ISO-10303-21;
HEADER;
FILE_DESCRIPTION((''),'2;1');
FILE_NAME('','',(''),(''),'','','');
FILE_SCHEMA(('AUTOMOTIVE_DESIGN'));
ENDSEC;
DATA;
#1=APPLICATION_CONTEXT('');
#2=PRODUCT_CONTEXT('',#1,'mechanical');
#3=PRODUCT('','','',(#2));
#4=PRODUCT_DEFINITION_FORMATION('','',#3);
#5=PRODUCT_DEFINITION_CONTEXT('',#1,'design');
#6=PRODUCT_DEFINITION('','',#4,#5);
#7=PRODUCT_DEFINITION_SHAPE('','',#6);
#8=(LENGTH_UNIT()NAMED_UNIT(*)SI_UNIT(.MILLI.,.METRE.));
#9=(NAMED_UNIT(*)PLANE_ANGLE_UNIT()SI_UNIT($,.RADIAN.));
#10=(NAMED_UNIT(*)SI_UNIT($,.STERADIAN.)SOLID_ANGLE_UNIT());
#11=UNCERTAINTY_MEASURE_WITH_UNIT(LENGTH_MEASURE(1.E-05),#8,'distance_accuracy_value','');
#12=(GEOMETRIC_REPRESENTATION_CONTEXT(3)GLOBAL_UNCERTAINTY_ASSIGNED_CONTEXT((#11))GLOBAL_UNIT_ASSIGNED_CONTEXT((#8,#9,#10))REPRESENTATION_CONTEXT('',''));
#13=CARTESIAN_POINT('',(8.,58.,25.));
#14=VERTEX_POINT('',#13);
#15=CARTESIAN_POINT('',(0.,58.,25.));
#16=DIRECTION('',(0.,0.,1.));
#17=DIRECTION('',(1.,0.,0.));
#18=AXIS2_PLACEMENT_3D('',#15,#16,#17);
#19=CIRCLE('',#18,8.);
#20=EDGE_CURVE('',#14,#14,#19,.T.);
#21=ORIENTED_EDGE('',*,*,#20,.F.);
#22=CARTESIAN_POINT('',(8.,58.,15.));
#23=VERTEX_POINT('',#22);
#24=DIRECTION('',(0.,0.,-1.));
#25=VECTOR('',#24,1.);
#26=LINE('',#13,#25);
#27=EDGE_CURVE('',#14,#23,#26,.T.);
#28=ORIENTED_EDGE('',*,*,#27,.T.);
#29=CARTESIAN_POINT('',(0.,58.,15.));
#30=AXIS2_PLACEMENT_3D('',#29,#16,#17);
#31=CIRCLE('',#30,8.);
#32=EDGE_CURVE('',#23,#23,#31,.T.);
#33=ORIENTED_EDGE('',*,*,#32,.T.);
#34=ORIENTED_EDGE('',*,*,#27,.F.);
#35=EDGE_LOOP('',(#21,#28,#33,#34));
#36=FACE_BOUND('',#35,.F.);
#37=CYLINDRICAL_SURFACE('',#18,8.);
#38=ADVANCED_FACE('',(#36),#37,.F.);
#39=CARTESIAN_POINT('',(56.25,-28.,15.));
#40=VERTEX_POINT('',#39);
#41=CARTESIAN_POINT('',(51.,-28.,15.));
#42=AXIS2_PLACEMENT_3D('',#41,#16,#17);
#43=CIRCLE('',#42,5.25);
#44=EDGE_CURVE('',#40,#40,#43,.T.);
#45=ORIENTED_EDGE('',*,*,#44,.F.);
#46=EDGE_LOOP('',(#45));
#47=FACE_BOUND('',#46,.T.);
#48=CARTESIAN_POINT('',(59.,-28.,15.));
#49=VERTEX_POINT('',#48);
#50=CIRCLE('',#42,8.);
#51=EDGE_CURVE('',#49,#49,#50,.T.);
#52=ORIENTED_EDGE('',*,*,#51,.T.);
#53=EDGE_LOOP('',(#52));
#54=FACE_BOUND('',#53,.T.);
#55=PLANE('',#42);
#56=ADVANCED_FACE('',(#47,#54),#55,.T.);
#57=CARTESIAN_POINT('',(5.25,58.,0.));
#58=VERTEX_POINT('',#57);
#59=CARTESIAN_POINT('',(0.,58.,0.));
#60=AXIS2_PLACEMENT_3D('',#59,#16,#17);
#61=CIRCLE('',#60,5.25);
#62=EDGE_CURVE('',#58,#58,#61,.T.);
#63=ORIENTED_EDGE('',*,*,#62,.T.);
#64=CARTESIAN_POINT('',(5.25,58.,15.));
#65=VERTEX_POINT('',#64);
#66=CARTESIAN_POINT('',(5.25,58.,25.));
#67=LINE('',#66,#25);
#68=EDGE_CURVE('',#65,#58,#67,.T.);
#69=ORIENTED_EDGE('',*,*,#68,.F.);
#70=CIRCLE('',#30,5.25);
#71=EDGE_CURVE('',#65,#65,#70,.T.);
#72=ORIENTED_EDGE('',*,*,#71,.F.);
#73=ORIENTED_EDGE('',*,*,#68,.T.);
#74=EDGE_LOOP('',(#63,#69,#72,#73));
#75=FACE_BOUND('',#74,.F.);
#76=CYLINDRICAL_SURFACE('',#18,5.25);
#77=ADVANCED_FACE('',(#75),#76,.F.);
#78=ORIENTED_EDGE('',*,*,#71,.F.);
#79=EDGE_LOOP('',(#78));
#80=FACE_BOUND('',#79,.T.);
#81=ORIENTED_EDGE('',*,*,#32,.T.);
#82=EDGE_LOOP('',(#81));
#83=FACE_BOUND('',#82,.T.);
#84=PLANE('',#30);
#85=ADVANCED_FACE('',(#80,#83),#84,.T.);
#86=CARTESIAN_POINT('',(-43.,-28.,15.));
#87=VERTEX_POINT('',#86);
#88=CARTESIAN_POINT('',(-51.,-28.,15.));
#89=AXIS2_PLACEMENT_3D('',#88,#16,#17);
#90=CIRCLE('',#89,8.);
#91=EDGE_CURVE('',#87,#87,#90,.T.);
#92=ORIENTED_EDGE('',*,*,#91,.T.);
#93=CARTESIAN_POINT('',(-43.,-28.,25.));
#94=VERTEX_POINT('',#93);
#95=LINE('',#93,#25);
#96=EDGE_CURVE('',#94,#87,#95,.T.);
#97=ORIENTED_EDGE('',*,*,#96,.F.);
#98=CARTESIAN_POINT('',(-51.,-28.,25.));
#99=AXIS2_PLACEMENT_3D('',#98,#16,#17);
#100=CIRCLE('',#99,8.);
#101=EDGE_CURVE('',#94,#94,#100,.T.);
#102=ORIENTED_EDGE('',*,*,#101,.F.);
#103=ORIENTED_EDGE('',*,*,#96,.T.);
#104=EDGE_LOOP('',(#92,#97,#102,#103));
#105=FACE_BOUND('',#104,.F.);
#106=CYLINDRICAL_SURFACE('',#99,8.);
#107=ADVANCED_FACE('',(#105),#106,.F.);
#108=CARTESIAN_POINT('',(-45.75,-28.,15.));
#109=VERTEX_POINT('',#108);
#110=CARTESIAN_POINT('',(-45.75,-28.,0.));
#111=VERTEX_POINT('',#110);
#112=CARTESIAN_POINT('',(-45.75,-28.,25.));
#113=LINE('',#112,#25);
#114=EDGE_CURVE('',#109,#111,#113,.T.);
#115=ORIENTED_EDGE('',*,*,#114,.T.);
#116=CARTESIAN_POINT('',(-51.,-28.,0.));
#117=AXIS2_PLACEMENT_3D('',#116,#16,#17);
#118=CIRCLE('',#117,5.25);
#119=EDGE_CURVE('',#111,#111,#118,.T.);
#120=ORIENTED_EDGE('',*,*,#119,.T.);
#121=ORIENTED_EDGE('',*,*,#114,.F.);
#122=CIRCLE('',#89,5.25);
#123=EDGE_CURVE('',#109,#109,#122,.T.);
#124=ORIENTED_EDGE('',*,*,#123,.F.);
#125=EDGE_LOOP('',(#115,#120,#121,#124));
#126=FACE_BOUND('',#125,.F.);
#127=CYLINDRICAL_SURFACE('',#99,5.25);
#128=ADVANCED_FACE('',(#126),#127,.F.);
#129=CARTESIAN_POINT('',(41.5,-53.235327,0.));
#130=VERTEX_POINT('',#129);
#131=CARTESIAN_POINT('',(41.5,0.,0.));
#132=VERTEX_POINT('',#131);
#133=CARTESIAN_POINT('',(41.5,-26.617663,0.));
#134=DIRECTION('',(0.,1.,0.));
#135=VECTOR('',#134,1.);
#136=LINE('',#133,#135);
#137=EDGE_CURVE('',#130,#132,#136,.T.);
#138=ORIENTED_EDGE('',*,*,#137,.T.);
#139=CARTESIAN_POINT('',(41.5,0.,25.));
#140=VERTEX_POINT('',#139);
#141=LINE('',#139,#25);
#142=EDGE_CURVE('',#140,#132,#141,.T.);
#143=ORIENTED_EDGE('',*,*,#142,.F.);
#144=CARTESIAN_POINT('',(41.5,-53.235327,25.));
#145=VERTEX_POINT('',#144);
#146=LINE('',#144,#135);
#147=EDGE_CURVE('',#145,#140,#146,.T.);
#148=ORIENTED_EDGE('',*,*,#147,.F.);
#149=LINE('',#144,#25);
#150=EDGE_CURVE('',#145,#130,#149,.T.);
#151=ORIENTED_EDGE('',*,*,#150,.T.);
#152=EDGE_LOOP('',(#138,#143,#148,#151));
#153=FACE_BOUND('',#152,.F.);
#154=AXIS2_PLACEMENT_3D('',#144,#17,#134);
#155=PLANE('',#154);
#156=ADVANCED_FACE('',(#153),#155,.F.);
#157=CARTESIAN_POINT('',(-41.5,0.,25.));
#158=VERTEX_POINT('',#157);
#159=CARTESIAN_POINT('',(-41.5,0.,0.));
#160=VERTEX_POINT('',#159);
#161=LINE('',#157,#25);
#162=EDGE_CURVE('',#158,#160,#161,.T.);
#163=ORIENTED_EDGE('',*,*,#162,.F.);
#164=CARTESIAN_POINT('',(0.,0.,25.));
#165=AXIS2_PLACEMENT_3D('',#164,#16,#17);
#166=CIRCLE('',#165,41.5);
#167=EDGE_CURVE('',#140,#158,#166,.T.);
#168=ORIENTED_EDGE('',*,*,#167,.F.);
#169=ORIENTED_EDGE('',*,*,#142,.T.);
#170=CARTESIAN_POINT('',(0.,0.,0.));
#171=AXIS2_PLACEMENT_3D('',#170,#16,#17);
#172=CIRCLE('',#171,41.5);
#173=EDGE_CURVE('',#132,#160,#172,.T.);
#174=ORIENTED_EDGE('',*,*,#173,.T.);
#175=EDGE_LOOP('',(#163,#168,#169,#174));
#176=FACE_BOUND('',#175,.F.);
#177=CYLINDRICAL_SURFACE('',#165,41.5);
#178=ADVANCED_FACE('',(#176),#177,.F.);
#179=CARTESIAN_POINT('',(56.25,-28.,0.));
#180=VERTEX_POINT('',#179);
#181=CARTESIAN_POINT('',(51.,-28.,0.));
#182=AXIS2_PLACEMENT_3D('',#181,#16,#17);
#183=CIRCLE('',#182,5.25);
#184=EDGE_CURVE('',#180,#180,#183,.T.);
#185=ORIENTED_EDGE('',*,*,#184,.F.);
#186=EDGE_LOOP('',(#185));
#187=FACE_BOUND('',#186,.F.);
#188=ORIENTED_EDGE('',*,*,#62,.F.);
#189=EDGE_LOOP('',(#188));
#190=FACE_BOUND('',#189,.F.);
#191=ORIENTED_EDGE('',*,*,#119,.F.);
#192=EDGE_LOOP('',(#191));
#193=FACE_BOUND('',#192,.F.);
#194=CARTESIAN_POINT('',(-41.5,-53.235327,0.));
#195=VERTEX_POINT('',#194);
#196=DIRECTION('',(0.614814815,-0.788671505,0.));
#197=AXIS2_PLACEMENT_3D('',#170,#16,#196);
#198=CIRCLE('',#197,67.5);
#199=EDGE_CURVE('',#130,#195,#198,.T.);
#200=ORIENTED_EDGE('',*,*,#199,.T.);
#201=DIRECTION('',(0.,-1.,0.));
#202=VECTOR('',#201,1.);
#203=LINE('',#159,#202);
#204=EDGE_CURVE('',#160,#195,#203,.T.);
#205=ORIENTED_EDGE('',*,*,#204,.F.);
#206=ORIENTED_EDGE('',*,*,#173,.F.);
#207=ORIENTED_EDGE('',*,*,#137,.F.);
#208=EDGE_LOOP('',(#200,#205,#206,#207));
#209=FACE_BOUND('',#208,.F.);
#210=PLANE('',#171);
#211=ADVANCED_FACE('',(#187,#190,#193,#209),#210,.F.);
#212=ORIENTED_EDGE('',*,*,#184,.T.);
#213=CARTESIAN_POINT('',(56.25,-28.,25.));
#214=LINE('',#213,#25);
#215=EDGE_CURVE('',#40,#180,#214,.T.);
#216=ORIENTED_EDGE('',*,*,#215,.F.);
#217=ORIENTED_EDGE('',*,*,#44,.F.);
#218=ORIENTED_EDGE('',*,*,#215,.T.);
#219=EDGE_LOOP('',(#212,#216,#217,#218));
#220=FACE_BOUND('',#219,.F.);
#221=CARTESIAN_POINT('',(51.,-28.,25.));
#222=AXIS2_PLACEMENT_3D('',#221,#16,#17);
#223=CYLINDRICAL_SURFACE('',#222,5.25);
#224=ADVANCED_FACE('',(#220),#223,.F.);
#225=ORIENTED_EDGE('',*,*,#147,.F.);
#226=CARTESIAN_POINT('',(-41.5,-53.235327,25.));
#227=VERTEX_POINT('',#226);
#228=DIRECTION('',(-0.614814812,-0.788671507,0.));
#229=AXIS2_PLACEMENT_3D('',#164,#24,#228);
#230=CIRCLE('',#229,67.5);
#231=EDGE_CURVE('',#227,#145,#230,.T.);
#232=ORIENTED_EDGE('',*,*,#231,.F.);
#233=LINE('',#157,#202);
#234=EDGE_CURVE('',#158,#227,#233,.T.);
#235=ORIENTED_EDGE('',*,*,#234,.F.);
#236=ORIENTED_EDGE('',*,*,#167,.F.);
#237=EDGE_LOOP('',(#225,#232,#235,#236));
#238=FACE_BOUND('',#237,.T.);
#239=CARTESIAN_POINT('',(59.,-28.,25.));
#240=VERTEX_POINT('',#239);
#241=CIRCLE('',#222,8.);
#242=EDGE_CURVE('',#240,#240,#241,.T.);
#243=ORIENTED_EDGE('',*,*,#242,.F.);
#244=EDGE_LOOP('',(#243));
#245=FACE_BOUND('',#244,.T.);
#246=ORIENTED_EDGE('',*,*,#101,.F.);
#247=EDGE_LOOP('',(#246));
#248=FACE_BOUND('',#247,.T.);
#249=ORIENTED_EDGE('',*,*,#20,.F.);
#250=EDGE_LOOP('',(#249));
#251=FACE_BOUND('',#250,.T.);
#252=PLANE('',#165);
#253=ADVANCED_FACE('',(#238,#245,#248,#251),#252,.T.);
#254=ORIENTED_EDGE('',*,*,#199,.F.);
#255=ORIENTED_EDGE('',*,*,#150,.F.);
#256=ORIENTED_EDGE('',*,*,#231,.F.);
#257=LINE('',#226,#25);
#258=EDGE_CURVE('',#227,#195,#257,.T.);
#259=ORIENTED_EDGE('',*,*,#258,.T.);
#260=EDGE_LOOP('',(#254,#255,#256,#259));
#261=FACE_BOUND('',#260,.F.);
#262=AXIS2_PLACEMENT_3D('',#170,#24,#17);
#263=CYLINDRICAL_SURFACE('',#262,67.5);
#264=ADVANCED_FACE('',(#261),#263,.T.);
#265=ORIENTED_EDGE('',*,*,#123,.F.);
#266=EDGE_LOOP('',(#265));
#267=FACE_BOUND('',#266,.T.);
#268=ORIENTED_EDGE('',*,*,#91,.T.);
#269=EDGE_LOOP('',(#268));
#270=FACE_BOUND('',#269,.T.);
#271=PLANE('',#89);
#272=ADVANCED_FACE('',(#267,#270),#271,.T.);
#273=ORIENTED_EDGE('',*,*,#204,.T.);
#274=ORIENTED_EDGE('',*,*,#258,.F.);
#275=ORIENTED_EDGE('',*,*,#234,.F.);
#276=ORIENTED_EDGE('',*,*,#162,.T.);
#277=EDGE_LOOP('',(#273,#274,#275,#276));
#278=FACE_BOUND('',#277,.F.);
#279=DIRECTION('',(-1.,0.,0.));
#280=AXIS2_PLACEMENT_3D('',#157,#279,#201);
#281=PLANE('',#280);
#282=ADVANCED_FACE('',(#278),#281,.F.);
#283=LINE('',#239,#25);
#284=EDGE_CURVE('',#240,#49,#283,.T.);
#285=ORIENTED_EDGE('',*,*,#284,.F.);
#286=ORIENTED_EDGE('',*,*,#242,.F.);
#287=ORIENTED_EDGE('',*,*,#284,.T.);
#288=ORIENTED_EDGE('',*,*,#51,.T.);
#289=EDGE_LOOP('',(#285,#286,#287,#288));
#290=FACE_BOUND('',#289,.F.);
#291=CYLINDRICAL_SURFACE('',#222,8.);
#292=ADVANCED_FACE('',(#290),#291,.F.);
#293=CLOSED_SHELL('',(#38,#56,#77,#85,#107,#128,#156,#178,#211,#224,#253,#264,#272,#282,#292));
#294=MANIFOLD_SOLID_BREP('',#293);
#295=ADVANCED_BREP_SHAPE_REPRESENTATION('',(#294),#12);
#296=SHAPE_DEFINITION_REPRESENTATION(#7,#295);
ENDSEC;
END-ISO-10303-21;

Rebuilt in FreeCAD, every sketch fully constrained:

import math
import FreeCAD as App
import Part
import Sketcher
Q = App.Units.Quantity

doc = App.newDocument("Part")
body = doc.addObject("PartDesign::Body", "Body")

# Sketch on XY plane
sketch1 = doc.addObject("Sketcher::SketchObject", "Sketch")
body.addObject(sketch1)
sketch1.AttachmentSupport = (doc.XY_Plane, [""])
sketch1.MapMode = "FlatFace"
sketch1.addGeometry(Part.Circle(App.Vector(0, 0, 0), App.Vector(0, 0, 1), 68), False)
sketch1.addConstraint(Sketcher.Constraint("Coincident", 0, 3, -1, 1))
sketch1.addConstraint(Sketcher.Constraint("Diameter", 0, Q("135 mm")))
pad1 = doc.addObject("PartDesign::Pad", "Pad")
body.addObject(pad1)
pad1.Profile = sketch1
pad1.Length = 25

# Sketch on XY plane
sketch2 = doc.addObject("Sketcher::SketchObject", "Sketch001")
body.addObject(sketch2)
sketch2.AttachmentSupport = (doc.XY_Plane, [""])
sketch2.MapMode = "FlatFace"
sketch2.AttachmentOffset = App.Placement(App.Vector(0, 0, 25), App.Rotation())
sketch2.addGeometry(Part.ArcOfCircle(Part.Circle(App.Vector(0, 0, 0), App.Vector(0, 0, 1), 42), math.radians(0), math.radians(180)), False)
sketch2.addGeometry(Part.LineSegment(App.Vector(-42, 0, 0), App.Vector(-42, -53, 0)), False)
sketch2.addGeometry(Part.ArcOfCircle(Part.Circle(App.Vector(0, 0, 0), App.Vector(0, 0, 1), 68), math.radians(-128), math.radians(-52)), False)
sketch2.addGeometry(Part.LineSegment(App.Vector(42, -53, 0), App.Vector(42, 0, 0)), False)
sketch2.addConstraint(Sketcher.Constraint("Tangent", 0, 2, 1, 1))
sketch2.addConstraint(Sketcher.Constraint("Coincident", 1, 2, 2, 1))
sketch2.addConstraint(Sketcher.Constraint("Coincident", 2, 2, 3, 1))
sketch2.addConstraint(Sketcher.Constraint("Tangent", 3, 2, 0, 1))
sketch2.addConstraint(Sketcher.Constraint("Vertical", 1))
sketch2.addConstraint(Sketcher.Constraint("Vertical", 3))
sketch2.addConstraint(Sketcher.Constraint("Coincident", 0, 3, -1, 1))
sketch2.addConstraint(Sketcher.Constraint("Coincident", 2, 3, -1, 1))
sketch2.addConstraint(Sketcher.Constraint("Radius", 0, Q("41.5 mm")))
sketch2.addConstraint(Sketcher.Constraint("Radius", 2, Q("67.500001 mm")))
pocket1 = doc.addObject("PartDesign::Pocket", "Pocket")
body.addObject(pocket1)
pocket1.Profile = sketch2
pocket1.Type = "ThroughAll"

# Sketch on XY plane
sketch3 = doc.addObject("Sketcher::SketchObject", "Sketch002")
body.addObject(sketch3)
sketch3.AttachmentSupport = (doc.XY_Plane, [""])
sketch3.MapMode = "FlatFace"
sketch3.AttachmentOffset = App.Placement(App.Vector(0, 0, 25), App.Rotation())
sketch3.addGeometry(Part.Circle(App.Vector(51, -28, 0), App.Vector(0, 0, 1), 5), False)
sketch3.addGeometry(Part.Circle(App.Vector(-51, -28, 0), App.Vector(0, 0, 1), 5), False)
sketch3.addGeometry(Part.Circle(App.Vector(0, 58, 0), App.Vector(0, 0, 1), 5), False)
sketch3.addConstraint(Sketcher.Constraint("Equal", 0, 1))
sketch3.addConstraint(Sketcher.Constraint("Equal", 1, 2))
sketch3.addConstraint(Sketcher.Constraint("Symmetric", 0, 3, 1, 3, -2))
sketch3.addConstraint(Sketcher.Constraint("PointOnObject", 2, 3, -2))
sketch3.addConstraint(Sketcher.Constraint("Diameter", 0, Q("10.5 mm")))
sketch3.addConstraint(Sketcher.Constraint("DistanceX", -1, 1, 0, 3, Q("51 mm")))
sketch3.addConstraint(Sketcher.Constraint("DistanceY", 0, 3, -1, 1, Q("28 mm")))
sketch3.addConstraint(Sketcher.Constraint("DistanceY", -1, 1, 2, 3, Q("58 mm")))
pocket2 = doc.addObject("PartDesign::Pocket", "Pocket001")
body.addObject(pocket2)
pocket2.Profile = sketch3
pocket2.Type = "ThroughAll"

# Sketch on XY plane
sketch4 = doc.addObject("Sketcher::SketchObject", "Sketch003")
body.addObject(sketch4)
sketch4.AttachmentSupport = (doc.XY_Plane, [""])
sketch4.MapMode = "FlatFace"
sketch4.AttachmentOffset = App.Placement(App.Vector(0, 0, 25), App.Rotation())
sketch4.addGeometry(Part.Circle(App.Vector(51, -28, 0), App.Vector(0, 0, 1), 8), False)
sketch4.addGeometry(Part.Circle(App.Vector(51, -28, 0), App.Vector(0, 0, 1), 5), False)
sketch4.addGeometry(Part.Circle(App.Vector(0, 58, 0), App.Vector(0, 0, 1), 8), False)
sketch4.addGeometry(Part.Circle(App.Vector(0, 58, 0), App.Vector(0, 0, 1), 5), False)
sketch4.addGeometry(Part.Circle(App.Vector(-51, -28, 0), App.Vector(0, 0, 1), 8), False)
sketch4.addGeometry(Part.Circle(App.Vector(-51, -28, 0), App.Vector(0, 0, 1), 5), False)
sketch4.addConstraint(Sketcher.Constraint("Coincident", 1, 3, 0, 3))
sketch4.addConstraint(Sketcher.Constraint("Coincident", 3, 3, 2, 3))
sketch4.addConstraint(Sketcher.Constraint("Coincident", 5, 3, 4, 3))
sketch4.addConstraint(Sketcher.Constraint("Equal", 0, 2))
sketch4.addConstraint(Sketcher.Constraint("Equal", 1, 3))
sketch4.addConstraint(Sketcher.Constraint("Equal", 2, 4))
sketch4.addConstraint(Sketcher.Constraint("Equal", 3, 5))
sketch4.addConstraint(Sketcher.Constraint("Symmetric", 0, 3, 4, 3, -2))
sketch4.addConstraint(Sketcher.Constraint("PointOnObject", 2, 3, -2))
sketch4.addConstraint(Sketcher.Constraint("Diameter", 0, Q("16 mm")))
sketch4.addConstraint(Sketcher.Constraint("Diameter", 1, Q("10.5 mm")))
sketch4.addConstraint(Sketcher.Constraint("DistanceX", -1, 1, 0, 3, Q("51 mm")))
sketch4.addConstraint(Sketcher.Constraint("DistanceY", 0, 3, -1, 1, Q("28 mm")))
sketch4.addConstraint(Sketcher.Constraint("DistanceY", -1, 1, 2, 3, Q("58 mm")))
pocket3 = doc.addObject("PartDesign::Pocket", "Pocket002")
body.addObject(pocket3)
pocket3.Profile = sketch4
pocket3.Length = 10

doc.recompute()
